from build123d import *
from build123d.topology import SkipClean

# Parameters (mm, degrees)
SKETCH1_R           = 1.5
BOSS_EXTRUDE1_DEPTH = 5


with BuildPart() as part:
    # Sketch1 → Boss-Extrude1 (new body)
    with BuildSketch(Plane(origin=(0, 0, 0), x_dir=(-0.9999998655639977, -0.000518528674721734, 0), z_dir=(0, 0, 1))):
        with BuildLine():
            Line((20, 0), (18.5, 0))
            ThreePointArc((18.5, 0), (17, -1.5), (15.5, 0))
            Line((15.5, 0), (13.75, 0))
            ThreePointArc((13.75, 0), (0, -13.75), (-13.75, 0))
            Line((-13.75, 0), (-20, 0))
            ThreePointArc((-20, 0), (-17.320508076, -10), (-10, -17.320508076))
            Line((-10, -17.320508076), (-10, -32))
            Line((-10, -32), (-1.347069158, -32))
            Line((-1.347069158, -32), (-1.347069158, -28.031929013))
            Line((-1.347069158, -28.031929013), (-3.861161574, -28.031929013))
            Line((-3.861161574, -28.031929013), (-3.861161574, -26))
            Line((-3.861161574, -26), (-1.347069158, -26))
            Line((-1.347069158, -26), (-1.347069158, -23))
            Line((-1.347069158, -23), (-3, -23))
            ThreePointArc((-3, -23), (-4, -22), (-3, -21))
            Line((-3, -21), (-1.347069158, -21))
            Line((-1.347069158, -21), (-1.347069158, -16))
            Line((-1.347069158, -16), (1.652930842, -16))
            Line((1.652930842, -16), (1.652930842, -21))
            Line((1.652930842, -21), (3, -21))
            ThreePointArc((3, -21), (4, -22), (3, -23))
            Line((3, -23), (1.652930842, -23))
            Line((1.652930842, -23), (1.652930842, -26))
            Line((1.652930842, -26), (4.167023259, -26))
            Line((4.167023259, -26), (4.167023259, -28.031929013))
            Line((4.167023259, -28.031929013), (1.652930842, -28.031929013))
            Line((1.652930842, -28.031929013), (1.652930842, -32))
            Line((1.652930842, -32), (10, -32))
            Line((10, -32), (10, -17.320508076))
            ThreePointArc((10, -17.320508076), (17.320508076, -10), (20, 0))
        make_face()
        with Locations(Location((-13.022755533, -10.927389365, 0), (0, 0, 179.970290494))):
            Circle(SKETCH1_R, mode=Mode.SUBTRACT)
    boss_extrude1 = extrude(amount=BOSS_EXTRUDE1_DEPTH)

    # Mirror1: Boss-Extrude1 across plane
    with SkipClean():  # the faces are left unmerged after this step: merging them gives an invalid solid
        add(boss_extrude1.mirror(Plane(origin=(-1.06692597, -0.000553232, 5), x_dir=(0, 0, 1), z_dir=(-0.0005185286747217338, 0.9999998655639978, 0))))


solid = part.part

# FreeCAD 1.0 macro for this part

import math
import FreeCAD as App
import Part
import Sketcher
from FreeCAD import Vector
Q = App.Units.Quantity

doc = App.newDocument("Part")
body = doc.addObject("PartDesign::Body", "Body")

sketch1 = doc.addObject("Sketcher::SketchObject", "Sketch")
body.addObject(sketch1)
sketch1.AttachmentSupport = (doc.XY_Plane, [""])
sketch1.MapMode = "FlatFace"
sketch1.addGeometry([
    Part.LineSegment(Vector(-19.999997, -0.010371, 0), Vector(-18.499998, -0.009593, 0)),
    Part.ArcOfCircle(Part.Circle(Vector(-16.999998, -0.008815, 0), Vector(0, 0, 1), 1.5), math.radians(0.02971), math.radians(180.02971)),
    Part.LineSegment(Vector(-15.499998, -0.008037, 0), Vector(-13.749998, -0.00713, 0)),
    Part.ArcOfCircle(Part.Circle(Vector(0, 0, 0), Vector(0, 0, 1), 13.75), math.radians(0.02971), math.radians(180.02971)),
    Part.LineSegment(Vector(13.749998, 0.00713, 0), Vector(19.999997, 0.010371, 0)),
    Part.ArcOfCircle(Part.Circle(Vector(0, 0, 0), Vector(0, 0, 1), 20), math.radians(0.02971), math.radians(60.02971)),
    Part.LineSegment(Vector(9.991017, 17.325691, 0), Vector(9.983406, 32.005181, 0)),
    Part.LineSegment(Vector(9.983406, 32.005181, 0), Vector(1.330476, 32.000694, 0)),
    Part.LineSegment(Vector(1.330476, 32.000694, 0), Vector(1.332534, 28.032624, 0)),
    Part.LineSegment(Vector(1.332534, 28.032624, 0), Vector(3.846626, 28.033927, 0)),
    Part.LineSegment(Vector(3.846626, 28.033927, 0), Vector(3.847679, 26.001999, 0)),
    Part.LineSegment(Vector(3.847679, 26.001999, 0), Vector(1.333587, 26.000695, 0)),
    Part.LineSegment(Vector(1.333587, 26.000695, 0), Vector(1.335143, 23.000695, 0)),
    Part.LineSegment(Vector(1.335143, 23.000695, 0), Vector(2.988073, 23.001553, 0)),
    Part.ArcOfCircle(Part.Circle(Vector(2.988592, 22.001553, 0), Vector(0, 0, 1), 1), math.radians(-89.97029), math.radians(90.02971)),
    Part.LineSegment(Vector(2.98911, 21.001553, 0), Vector(1.33618, 21.000696, 0)),
    Part.LineSegment(Vector(1.33618, 21.000696, 0), Vector(1.338773, 16.000696, 0)),
    Part.LineSegment(Vector(1.338773, 16.000696, 0), Vector(-1.661227, 15.999141, 0)),
    Part.LineSegment(Vector(-1.661227, 15.999141, 0), Vector(-1.66382, 20.99914, 0)),
    Part.LineSegment(Vector(-1.66382, 20.99914, 0), Vector(-3.010889, 20.998442, 0)),
    Part.ArcOfCircle(Part.Circle(Vector(-3.011407, 21.998441, 0), Vector(0, 0, 1), 1), math.radians(90.02971), math.radians(270.02971)),
    Part.LineSegment(Vector(-3.011926, 22.998441, 0), Vector(-1.664857, 22.99914, 0)),
    Part.LineSegment(Vector(-1.664857, 22.99914, 0), Vector(-1.666412, 25.999139, 0)),
    Part.LineSegment(Vector(-1.666412, 25.999139, 0), Vector(-4.180504, 25.997836, 0)),
    Part.LineSegment(Vector(-4.180504, 25.997836, 0), Vector(-4.181558, 28.029765, 0)),
    Part.LineSegment(Vector(-4.181558, 28.029765, 0), Vector(-1.667466, 28.031068, 0)),
    Part.LineSegment(Vector(-1.667466, 28.031068, 0), Vector(-1.669524, 31.999139, 0)),
    Part.LineSegment(Vector(-1.669524, 31.999139, 0), Vector(-10.016592, 31.99481, 0)),
    Part.LineSegment(Vector(-10.016592, 31.99481, 0), Vector(-10.00898, 17.31532, 0)),
    Part.ArcOfCircle(Part.Circle(Vector(0, 0, 0), Vector(0, 0, 1), 20), math.radians(120.02971), math.radians(180.02971)),
    Part.Circle(Vector(13.017088, 10.934141, 0), Vector(0, 0, 1), 1.5),
], False)
sketch1.addConstraint([
    Sketcher.Constraint("Coincident", 0, 2, 1, 2),
    Sketcher.Constraint("Coincident", 1, 1, 2, 1),
    Sketcher.Constraint("Coincident", 2, 2, 3, 2),
    Sketcher.Constraint("Coincident", 3, 1, 4, 1),
    Sketcher.Constraint("Coincident", 4, 2, 5, 1),
    Sketcher.Constraint("Coincident", 5, 2, 6, 1),
    Sketcher.Constraint("Coincident", 6, 2, 7, 1),
    Sketcher.Constraint("Coincident", 7, 2, 8, 1),
    Sketcher.Constraint("Coincident", 8, 2, 9, 1),
    Sketcher.Constraint("Coincident", 9, 2, 10, 1),
    Sketcher.Constraint("Coincident", 10, 2, 11, 1),
    Sketcher.Constraint("Coincident", 11, 2, 12, 1),
    Sketcher.Constraint("Coincident", 12, 2, 13, 1),
    Sketcher.Constraint("Tangent", 13, 2, 14, 2),
    Sketcher.Constraint("Tangent", 14, 1, 15, 1),
    Sketcher.Constraint("Coincident", 15, 2, 16, 1),
    Sketcher.Constraint("Coincident", 16, 2, 17, 1),
    Sketcher.Constraint("Coincident", 17, 2, 18, 1),
    Sketcher.Constraint("Coincident", 18, 2, 19, 1),
    Sketcher.Constraint("Tangent", 19, 2, 20, 2),
    Sketcher.Constraint("Tangent", 20, 1, 21, 1),
    Sketcher.Constraint("Coincident", 21, 2, 22, 1),
    Sketcher.Constraint("Coincident", 22, 2, 23, 1),
    Sketcher.Constraint("Coincident", 23, 2, 24, 1),
    Sketcher.Constraint("Coincident", 24, 2, 25, 1),
    Sketcher.Constraint("Coincident", 25, 2, 26, 1),
    Sketcher.Constraint("Coincident", 26, 2, 27, 1),
    Sketcher.Constraint("Coincident", 27, 2, 28, 1),
    Sketcher.Constraint("Coincident", 28, 2, 29, 1),
    Sketcher.Constraint("Coincident", 29, 2, 0, 1),
    Sketcher.Constraint("Coincident", 3, 3, -1, 1),
    Sketcher.Constraint("Coincident", 5, 3, -1, 1),
    Sketcher.Constraint("Coincident", 29, 3, -1, 1),
    Sketcher.Constraint("Equal", 14, 20),
    Sketcher.Constraint("Equal", 5, 29),
    Sketcher.Constraint("Equal", 1, 30),
    Sketcher.Constraint("Parallel", 0, 2),
    Sketcher.Constraint("Parallel", 2, 4),
    Sketcher.Constraint("Perpendicular", 4, 6),
    Sketcher.Constraint("Perpendicular", 6, 7),
    Sketcher.Constraint("Perpendicular", 7, 8),
    Sketcher.Constraint("Perpendicular", 8, 9),
    Sketcher.Constraint("Perpendicular", 9, 10),
    Sketcher.Constraint("Perpendicular", 10, 11),
    Sketcher.Constraint("Perpendicular", 11, 12),
    Sketcher.Constraint("Perpendicular", 12, 13),
    Sketcher.Constraint("Parallel", 13, 15),
    Sketcher.Constraint("Perpendicular", 15, 16),
    Sketcher.Constraint("Perpendicular", 16, 17),
    Sketcher.Constraint("Perpendicular", 17, 18),
    Sketcher.Constraint("Perpendicular", 18, 19),
    Sketcher.Constraint("Parallel", 19, 21),
    Sketcher.Constraint("Perpendicular", 21, 22),
    Sketcher.Constraint("Perpendicular", 22, 23),
    Sketcher.Constraint("Perpendicular", 23, 24),
    Sketcher.Constraint("Perpendicular", 24, 25),
    Sketcher.Constraint("Perpendicular", 25, 26),
    Sketcher.Constraint("Perpendicular", 26, 27),
    Sketcher.Constraint("Perpendicular", 27, 28),
    Sketcher.Constraint("Equal", 9, 11),
    Sketcher.Constraint("Equal", 13, 15),
    Sketcher.Constraint("Equal", 12, 17),
    Sketcher.Constraint("Equal", 16, 18),
    Sketcher.Constraint("Equal", 19, 21),
    Sketcher.Constraint("Equal", 17, 22),
    Sketcher.Constraint("Equal", 11, 23),
    Sketcher.Constraint("Equal", 10, 24),
    Sketcher.Constraint("Equal", 23, 25),
    Sketcher.Constraint("Equal", 8, 26),
    Sketcher.Constraint("Equal", 6, 28),
    Sketcher.Constraint("Diameter", 30, Q("3 mm")),
    Sketcher.Constraint("Radius", 5, Q("20 mm")),
    Sketcher.Constraint("Radius", 14, Q("1 mm")),
    Sketcher.Constraint("Radius", 3, Q("13.75 mm")),
    Sketcher.Constraint("Distance", 12, Q("3 mm")),
    Sketcher.Constraint("Distance", 16, Q("5 mm")),
    Sketcher.Constraint("DistanceX", 20, 3, 14, 3, Q("5.999999 mm")),
    Sketcher.Constraint("DistanceY", 22, 2, 26, 2, Q("5.999999 mm")),
    Sketcher.Constraint("DistanceX", 29, 2, 1, 3, Q("3 mm")),
    Sketcher.Constraint("DistanceY", -1, 1, 10, 2, Q("26.001999 mm")),
    Sketcher.Constraint("DistanceY", 30, 3, 20, 3, Q("11.064301 mm")),
    Sketcher.Constraint("DistanceX", 16, 2, 13, 2, Q("1.649301 mm")),
    Sketcher.Constraint("DistanceY", 17, 2, 20, 3, Q("5.999301 mm")),
    Sketcher.Constraint("DistanceX", 24, 2, 21, 2, Q("2.516701 mm")),
    Sketcher.Constraint("Distance", 6, Q("14.679492 mm")),
    Sketcher.Constraint("Distance", 7, Q("8.652931 mm")),
    Sketcher.Constraint("Distance", 8, Q("3.968071 mm")),
    Sketcher.Constraint("DistanceY", 2, 2, -1, 1, Q("0.00713 mm")),
    Sketcher.Constraint("DistanceY", -1, 1, 3, 1, Q("0.00713 mm")),
    Sketcher.Constraint("DistanceY", 29, 2, -1, 1, Q("0.010371 mm")),
    Sketcher.Constraint("DistanceX", 30, 3, 3, 1, Q("0.732911 mm")),
    Sketcher.Constraint("DistanceY", 1, 3, -1, 1, Q("0.008815 mm")),
])
pad1 = doc.addObject("PartDesign::Pad", "Pad")
body.addObject(pad1)
pad1.Profile = sketch1
pad1.Length = 5
doc.recompute()

datumplane = doc.addObject("PartDesign::Plane", "DatumPlane")
body.addObject(datumplane)
datumplane.Placement = App.Placement(Vector(0, 0, 0), App.Rotation(Vector(0.999999866, 0.000518529, 0), Vector(0, 0, -1), Vector(-0.000518529, 0.999999866, 0), "ZXY"))
mirrored = doc.addObject("PartDesign::Mirrored", "Mirrored")
body.addObject(mirrored)
mirrored.Originals = [pad1]
mirrored.MirrorPlane = (datumplane, [""])
body.Tip = mirrored

doc.recompute()
